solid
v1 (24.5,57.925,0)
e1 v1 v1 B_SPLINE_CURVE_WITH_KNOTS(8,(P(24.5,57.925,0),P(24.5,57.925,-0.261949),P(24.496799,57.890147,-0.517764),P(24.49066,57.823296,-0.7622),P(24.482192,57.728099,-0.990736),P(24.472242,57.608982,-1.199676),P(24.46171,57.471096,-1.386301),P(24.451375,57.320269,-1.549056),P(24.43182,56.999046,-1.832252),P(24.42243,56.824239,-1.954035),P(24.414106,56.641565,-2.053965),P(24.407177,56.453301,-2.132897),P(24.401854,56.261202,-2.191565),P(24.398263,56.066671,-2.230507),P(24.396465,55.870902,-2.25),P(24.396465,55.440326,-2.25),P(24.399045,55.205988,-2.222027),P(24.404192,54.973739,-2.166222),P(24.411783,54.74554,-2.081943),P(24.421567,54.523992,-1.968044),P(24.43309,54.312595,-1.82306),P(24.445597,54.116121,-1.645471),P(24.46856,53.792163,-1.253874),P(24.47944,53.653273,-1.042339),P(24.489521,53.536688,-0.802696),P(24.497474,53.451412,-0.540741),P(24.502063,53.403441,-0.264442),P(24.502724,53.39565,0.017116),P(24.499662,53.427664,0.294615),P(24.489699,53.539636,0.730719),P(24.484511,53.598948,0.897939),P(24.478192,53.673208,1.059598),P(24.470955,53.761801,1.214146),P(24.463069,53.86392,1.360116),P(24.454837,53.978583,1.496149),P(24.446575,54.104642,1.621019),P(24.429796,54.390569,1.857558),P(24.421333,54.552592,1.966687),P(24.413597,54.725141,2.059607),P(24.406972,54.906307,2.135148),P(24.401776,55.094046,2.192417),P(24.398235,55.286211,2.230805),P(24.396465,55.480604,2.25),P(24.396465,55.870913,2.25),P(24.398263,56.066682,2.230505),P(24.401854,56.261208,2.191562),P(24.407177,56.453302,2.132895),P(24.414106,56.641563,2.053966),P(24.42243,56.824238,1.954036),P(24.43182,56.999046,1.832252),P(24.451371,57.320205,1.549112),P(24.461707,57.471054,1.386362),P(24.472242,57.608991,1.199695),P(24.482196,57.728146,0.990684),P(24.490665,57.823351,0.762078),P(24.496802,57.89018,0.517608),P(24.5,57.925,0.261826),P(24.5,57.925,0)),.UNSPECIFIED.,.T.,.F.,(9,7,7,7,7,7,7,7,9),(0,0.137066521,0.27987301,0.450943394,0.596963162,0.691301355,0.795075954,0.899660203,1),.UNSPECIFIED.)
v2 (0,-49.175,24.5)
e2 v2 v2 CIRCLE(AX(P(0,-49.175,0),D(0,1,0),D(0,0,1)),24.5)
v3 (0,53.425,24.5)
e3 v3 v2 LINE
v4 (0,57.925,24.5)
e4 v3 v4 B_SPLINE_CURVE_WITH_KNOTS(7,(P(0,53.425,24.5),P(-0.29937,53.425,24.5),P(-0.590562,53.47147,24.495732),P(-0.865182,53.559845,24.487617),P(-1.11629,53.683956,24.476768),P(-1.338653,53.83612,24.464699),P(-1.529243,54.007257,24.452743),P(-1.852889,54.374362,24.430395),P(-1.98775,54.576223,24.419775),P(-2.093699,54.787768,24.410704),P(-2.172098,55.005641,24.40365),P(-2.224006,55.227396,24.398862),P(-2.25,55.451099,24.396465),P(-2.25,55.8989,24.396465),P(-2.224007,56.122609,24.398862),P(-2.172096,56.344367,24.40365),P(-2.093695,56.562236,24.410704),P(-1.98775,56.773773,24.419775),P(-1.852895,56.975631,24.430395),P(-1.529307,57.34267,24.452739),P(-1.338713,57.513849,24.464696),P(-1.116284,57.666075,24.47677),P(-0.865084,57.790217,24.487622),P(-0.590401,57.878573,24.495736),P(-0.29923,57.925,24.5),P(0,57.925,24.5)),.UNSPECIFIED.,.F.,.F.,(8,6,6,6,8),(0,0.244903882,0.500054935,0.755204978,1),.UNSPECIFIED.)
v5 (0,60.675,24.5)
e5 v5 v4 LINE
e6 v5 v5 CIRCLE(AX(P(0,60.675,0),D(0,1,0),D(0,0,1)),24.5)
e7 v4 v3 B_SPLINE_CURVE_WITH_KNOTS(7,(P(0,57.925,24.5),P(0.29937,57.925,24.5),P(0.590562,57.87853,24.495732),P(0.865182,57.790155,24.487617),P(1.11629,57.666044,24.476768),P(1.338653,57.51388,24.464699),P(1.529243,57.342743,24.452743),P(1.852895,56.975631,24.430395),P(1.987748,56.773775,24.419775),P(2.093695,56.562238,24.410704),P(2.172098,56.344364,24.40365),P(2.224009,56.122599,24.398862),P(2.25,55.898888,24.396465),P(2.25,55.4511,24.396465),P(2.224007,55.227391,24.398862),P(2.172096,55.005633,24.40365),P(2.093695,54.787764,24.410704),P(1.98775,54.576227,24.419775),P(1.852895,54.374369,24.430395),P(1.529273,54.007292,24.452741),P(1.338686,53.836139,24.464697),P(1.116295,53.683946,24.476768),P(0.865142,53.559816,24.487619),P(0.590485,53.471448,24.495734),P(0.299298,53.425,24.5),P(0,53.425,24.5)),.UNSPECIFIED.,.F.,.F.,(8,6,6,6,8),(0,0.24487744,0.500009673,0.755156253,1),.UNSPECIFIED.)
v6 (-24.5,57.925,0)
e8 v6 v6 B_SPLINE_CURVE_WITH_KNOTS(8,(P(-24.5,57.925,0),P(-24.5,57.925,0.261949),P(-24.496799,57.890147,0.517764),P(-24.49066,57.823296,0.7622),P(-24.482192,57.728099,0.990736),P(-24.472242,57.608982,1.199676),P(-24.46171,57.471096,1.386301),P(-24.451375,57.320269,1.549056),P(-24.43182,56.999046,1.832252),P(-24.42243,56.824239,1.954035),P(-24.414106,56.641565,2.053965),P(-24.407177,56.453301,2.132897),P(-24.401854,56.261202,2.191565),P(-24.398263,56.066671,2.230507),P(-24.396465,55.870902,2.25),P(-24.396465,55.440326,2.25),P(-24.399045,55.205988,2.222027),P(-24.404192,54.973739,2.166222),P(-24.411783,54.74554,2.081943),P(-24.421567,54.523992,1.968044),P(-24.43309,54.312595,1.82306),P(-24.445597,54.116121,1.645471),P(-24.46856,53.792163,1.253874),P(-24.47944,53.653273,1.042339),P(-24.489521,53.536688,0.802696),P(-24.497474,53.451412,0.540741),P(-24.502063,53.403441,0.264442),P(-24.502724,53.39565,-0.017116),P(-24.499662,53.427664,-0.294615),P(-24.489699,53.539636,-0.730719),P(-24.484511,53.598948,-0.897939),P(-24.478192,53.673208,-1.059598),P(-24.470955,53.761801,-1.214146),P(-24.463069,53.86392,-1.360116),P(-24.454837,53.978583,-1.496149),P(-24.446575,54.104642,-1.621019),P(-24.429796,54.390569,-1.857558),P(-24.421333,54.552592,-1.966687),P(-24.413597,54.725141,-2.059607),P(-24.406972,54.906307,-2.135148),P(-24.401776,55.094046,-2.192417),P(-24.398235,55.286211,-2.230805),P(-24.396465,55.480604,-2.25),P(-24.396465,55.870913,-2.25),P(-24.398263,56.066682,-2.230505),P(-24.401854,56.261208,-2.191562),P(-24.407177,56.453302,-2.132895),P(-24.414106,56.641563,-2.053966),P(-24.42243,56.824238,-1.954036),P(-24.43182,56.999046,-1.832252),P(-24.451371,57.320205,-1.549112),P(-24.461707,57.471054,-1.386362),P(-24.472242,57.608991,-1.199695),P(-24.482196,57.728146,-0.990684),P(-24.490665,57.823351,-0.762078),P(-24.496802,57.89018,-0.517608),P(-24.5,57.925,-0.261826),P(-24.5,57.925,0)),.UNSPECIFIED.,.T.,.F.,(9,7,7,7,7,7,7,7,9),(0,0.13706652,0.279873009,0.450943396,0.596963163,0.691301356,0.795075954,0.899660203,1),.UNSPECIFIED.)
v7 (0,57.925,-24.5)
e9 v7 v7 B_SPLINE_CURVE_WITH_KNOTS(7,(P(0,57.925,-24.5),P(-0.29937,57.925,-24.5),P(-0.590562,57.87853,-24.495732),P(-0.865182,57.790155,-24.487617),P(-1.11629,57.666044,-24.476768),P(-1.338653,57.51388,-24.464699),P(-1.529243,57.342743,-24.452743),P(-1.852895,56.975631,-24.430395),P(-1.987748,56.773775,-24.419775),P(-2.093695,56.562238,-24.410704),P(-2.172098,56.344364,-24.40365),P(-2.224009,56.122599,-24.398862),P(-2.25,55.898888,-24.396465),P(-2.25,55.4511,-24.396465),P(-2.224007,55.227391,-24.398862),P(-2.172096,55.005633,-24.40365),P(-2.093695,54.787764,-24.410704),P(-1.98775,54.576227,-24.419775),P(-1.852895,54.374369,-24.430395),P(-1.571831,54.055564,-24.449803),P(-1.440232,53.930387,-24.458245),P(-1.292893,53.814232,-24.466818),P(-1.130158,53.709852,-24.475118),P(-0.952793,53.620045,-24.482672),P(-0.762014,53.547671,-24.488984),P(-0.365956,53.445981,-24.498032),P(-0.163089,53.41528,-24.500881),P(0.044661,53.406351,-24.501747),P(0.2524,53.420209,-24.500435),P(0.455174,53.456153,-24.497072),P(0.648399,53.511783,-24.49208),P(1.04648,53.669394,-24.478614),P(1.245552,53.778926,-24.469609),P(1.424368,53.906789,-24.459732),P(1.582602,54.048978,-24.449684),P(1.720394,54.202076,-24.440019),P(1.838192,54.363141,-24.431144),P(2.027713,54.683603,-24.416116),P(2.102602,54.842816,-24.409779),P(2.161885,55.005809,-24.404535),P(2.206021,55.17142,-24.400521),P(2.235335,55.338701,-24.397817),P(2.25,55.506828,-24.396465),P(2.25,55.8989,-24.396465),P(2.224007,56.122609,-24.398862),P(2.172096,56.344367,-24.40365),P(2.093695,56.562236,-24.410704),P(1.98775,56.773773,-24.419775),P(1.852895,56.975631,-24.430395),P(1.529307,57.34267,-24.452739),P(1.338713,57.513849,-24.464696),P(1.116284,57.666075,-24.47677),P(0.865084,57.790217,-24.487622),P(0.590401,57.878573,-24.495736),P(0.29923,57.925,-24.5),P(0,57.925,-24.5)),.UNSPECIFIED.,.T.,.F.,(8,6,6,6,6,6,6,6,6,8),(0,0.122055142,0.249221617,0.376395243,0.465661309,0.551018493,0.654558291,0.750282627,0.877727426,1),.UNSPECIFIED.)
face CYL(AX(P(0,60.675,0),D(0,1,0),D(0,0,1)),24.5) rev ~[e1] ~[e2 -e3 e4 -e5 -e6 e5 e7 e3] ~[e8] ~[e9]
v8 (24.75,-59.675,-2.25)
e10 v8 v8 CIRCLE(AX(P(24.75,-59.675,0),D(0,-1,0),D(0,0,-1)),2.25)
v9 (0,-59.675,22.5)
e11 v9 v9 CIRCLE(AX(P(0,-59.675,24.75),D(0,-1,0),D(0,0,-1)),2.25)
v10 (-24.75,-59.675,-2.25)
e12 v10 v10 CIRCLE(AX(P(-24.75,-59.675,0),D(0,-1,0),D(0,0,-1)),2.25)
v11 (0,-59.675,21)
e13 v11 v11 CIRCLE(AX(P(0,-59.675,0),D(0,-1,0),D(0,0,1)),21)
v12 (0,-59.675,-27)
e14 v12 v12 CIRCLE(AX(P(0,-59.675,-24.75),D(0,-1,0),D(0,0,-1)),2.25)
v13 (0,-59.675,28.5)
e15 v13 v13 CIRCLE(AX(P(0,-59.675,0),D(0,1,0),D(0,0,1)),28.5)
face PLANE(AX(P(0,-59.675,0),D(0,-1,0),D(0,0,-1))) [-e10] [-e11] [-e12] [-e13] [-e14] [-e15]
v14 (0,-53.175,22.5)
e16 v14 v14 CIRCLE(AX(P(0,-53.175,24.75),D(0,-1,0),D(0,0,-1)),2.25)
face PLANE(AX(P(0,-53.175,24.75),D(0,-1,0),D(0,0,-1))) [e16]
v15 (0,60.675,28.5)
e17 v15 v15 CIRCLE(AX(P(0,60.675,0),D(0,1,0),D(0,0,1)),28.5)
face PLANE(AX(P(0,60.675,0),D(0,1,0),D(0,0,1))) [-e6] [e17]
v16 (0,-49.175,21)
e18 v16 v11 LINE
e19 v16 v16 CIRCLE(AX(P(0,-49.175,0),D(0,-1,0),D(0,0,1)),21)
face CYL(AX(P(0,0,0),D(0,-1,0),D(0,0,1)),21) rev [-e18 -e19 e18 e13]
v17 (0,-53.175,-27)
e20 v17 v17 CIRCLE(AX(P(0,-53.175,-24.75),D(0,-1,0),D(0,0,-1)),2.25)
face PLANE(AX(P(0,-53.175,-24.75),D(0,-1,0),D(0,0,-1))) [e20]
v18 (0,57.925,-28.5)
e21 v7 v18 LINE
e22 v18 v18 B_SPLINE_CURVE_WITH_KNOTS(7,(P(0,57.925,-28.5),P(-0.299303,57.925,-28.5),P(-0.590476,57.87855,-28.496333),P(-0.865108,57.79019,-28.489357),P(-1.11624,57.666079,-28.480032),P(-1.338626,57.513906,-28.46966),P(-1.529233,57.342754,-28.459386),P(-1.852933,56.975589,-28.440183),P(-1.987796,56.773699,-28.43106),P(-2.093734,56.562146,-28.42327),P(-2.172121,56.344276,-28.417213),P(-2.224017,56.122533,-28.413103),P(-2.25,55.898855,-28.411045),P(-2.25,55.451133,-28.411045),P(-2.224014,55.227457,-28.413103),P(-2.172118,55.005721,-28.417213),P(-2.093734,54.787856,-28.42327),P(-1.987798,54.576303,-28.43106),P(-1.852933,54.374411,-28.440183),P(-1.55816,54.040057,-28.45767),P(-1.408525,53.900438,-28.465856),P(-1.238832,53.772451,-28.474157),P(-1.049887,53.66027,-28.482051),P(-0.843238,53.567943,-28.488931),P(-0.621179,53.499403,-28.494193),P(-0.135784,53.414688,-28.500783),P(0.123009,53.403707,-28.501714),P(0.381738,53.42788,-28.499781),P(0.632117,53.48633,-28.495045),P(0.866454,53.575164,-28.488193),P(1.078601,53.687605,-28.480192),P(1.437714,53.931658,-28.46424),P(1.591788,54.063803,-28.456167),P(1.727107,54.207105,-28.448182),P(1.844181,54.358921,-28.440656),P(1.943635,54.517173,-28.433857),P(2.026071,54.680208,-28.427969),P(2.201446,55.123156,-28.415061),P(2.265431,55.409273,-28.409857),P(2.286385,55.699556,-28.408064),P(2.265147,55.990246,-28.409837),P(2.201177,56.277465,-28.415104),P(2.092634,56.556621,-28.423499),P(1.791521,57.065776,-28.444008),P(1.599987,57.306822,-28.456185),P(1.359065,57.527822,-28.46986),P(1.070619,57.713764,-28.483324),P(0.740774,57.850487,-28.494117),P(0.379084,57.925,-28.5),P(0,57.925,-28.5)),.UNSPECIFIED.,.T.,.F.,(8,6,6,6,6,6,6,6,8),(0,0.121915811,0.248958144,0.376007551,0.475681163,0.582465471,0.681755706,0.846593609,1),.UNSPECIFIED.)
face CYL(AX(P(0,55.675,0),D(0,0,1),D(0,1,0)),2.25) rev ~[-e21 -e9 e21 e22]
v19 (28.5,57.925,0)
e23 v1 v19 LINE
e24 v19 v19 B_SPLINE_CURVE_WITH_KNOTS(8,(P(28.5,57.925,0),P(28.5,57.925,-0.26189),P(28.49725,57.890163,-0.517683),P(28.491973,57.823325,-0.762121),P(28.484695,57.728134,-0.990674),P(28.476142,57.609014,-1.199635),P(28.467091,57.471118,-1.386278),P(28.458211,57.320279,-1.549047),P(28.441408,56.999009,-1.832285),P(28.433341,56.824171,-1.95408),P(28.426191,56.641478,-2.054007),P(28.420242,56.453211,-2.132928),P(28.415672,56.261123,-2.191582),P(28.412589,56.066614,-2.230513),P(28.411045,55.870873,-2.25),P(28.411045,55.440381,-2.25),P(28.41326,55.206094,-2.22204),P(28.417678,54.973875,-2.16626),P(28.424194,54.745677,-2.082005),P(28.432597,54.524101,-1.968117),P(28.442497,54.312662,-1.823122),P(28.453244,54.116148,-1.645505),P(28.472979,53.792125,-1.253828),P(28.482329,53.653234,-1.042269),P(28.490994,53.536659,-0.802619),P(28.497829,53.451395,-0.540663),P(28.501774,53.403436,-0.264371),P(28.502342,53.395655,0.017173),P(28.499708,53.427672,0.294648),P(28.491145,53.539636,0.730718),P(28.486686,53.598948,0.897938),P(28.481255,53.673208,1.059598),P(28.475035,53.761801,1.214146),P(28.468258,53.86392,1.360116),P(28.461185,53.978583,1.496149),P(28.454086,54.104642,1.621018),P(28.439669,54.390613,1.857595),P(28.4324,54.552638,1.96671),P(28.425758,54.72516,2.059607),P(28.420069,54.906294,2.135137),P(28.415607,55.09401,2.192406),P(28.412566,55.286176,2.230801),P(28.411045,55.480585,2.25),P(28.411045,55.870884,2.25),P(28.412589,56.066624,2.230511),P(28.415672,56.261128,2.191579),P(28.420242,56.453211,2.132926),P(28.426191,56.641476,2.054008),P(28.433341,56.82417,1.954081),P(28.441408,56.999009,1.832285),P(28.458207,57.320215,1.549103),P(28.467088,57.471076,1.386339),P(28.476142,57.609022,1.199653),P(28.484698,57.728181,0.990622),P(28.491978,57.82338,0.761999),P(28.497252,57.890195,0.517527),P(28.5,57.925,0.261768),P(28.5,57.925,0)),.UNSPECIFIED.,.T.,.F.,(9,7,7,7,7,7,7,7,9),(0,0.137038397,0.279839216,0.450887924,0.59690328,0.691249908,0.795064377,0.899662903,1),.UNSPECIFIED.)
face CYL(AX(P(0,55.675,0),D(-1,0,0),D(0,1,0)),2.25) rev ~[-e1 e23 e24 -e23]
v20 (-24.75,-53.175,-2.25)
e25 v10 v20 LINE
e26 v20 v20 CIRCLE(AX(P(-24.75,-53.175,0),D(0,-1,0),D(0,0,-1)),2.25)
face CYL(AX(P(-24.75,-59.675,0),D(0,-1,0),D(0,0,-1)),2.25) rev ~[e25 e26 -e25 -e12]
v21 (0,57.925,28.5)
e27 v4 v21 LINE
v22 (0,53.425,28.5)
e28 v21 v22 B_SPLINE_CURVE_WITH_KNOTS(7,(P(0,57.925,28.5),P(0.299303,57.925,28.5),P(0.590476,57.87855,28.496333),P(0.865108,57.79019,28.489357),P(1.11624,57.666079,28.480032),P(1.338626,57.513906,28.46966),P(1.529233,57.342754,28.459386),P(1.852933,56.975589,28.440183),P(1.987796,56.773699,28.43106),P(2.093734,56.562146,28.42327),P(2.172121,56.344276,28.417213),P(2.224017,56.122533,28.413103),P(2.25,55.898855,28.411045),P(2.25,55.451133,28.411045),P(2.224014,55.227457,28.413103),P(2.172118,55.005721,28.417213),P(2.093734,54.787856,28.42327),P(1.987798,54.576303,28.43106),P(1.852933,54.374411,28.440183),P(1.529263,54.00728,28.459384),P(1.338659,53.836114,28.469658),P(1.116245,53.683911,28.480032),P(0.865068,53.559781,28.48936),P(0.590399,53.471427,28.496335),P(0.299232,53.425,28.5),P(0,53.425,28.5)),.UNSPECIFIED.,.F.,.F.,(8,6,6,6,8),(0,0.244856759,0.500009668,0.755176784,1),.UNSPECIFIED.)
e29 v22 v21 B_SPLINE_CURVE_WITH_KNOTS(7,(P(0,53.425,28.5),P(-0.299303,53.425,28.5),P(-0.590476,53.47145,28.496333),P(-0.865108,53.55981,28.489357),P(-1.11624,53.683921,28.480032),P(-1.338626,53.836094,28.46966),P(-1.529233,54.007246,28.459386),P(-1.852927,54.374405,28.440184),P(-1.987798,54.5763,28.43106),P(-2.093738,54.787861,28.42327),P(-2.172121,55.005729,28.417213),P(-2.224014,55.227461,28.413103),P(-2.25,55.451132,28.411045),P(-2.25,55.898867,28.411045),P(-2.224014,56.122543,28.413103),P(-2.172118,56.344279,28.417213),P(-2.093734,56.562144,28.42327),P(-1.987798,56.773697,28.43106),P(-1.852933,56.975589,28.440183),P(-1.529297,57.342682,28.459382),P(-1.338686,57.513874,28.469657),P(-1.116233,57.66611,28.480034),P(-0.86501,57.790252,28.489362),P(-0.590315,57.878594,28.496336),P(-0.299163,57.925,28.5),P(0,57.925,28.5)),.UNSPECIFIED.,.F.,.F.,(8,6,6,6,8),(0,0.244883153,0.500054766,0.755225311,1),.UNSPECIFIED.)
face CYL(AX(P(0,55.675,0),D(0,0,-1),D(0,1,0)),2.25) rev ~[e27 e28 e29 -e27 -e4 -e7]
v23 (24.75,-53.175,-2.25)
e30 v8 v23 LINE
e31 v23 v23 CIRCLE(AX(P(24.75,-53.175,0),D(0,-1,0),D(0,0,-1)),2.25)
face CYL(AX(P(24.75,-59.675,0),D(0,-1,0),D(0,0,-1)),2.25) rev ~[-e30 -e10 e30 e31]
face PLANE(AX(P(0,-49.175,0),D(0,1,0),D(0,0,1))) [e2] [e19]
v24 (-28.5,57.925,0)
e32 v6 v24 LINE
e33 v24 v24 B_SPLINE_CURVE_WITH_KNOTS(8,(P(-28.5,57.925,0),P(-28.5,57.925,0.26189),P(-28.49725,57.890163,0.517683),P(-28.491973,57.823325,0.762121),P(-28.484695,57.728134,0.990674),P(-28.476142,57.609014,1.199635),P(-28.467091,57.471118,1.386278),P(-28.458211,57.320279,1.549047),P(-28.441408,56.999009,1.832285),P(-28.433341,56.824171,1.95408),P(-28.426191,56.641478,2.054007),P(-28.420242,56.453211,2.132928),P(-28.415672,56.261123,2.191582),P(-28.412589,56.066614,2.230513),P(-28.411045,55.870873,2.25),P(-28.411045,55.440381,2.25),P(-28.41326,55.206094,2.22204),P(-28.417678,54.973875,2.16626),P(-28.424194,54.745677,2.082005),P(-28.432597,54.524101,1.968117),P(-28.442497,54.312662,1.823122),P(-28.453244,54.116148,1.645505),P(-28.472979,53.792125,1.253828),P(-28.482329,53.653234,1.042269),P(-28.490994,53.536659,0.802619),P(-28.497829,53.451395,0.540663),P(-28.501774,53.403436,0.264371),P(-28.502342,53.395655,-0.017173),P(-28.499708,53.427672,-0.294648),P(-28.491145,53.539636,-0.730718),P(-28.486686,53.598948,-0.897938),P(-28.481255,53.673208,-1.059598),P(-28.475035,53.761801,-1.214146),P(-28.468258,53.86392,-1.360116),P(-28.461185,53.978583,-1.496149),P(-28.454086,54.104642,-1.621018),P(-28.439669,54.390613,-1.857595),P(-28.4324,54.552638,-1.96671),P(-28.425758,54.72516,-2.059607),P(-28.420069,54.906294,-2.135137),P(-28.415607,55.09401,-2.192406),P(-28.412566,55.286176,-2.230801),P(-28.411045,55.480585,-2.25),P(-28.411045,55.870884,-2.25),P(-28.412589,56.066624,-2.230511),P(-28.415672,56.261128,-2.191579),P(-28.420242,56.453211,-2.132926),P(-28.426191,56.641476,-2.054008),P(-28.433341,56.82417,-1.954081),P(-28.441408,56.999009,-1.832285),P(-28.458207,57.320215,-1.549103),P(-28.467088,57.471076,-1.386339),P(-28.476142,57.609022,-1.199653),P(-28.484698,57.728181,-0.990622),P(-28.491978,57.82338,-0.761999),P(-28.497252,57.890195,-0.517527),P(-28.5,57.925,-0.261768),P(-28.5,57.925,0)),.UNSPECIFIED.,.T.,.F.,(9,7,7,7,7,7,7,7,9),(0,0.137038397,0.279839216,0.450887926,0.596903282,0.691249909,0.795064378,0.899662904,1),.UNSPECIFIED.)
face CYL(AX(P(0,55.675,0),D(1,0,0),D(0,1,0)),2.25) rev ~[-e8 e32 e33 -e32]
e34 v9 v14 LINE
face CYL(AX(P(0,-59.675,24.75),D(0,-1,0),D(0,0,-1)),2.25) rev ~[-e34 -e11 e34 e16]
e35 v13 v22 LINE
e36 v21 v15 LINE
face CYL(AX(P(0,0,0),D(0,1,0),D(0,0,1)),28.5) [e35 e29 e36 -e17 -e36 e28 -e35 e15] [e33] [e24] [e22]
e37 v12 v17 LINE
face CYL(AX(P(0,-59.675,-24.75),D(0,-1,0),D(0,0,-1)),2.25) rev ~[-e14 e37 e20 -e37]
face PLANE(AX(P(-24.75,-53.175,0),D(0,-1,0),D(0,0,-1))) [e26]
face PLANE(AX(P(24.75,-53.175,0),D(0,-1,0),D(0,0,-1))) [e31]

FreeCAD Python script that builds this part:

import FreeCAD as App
import Part
import Sketcher
from FreeCAD import Vector
Q = App.Units.Quantity

doc = App.newDocument("Part")
params = doc.addObject("Spreadsheet::Sheet", "Params")
for row, (alias, value) in enumerate([
    ("sketch1_diameter", "57 mm"),
    ("sketch1_diameter2", "42 mm"),
    ("pad1_length", "121.35 mm"),
    ("sketch2_diameter", "4.5 mm"),
    ("sketch3_diameter", "57 mm"),
    ("pocket2_length", "1 mm"),
    ("sketch4_diameter", "4.5 mm"),
    ("pocket3_length", "6.5 mm"),
    ("sketch5_diameter", "49 mm"),
    ("pocket4_length", "109.85 mm"),
], start=1):
    params.set(f"A{row}", alias)
    params.set(f"B{row}", "=" + value)
    params.setAlias(f"B{row}", alias)

body = doc.addObject("PartDesign::Body", "Body")

sketch1 = doc.addObject("Sketcher::SketchObject", "Sketch")
body.addObject(sketch1)
sketch1.AttachmentSupport = (doc.XZ_Plane, [""])
sketch1.MapMode = "FlatFace"
sketch1.addGeometry([
    Part.Circle(Vector(0, 0, 0), Vector(0, 0, 1), 28),
    Part.Circle(Vector(0, 0, 0), Vector(0, 0, 1), 21),
], False)
sketch1.addConstraint([
    Sketcher.Constraint("Coincident", 0, 3, -1, 1),
    Sketcher.Constraint("Coincident", 1, 3, -1, 1),
    Sketcher.Constraint("Diameter", 0, Q("57 mm")),
    Sketcher.Constraint("Diameter", 1, Q("42 mm")),
])
sketch1.setExpression("Constraints[2]", "Params.sketch1_diameter")
sketch1.setExpression("Constraints[3]", "Params.sketch1_diameter2")
pad1 = doc.addObject("PartDesign::Pad", "Pad")
body.addObject(pad1)
pad1.Profile = sketch1
pad1.setExpression("Length", "Params.pad1_length")
pad1.Midplane = True

sketch2 = doc.addObject("Sketcher::SketchObject", "Sketch001")
body.addObject(sketch2)
sketch2.AttachmentSupport = (doc.XY_Plane, [""])
sketch2.MapMode = "FlatFace"
sketch2.addGeometry(Part.Circle(Vector(0, 55.7, 0), Vector(0, 0, 1), 2.2), False)
sketch2.addConstraint([
    Sketcher.Constraint("PointOnObject", 0, 3, -2),
    Sketcher.Constraint("Diameter", 0, Q("4.5 mm")),
    Sketcher.Constraint("DistanceY", -1, 1, 0, 3, Q("55.675 mm")),
])
sketch2.setExpression("Constraints[1]", "Params.sketch2_diameter")
pocket1 = doc.addObject("PartDesign::Pocket", "Pocket")
body.addObject(pocket1)
pocket1.Profile = sketch2
pocket1.Type = "ThroughAll"
doc.recompute()

polarpattern = doc.addObject("PartDesign::PolarPattern", "PolarPattern")
body.addObject(polarpattern)
polarpattern.Originals = [pocket1]
polarpattern.Axis = (doc.Y_Axis, [""])
polarpattern.Angle = 360
polarpattern.Occurrences = 4
body.Tip = polarpattern

sketch3 = doc.addObject("Sketcher::SketchObject", "Sketch002")
body.addObject(sketch3)
sketch3.AttachmentSupport = (doc.XZ_Plane, [""])
sketch3.MapMode = "FlatFace"
sketch3.AttachmentOffset = App.Placement(Vector(0, 0, 59.675), App.Rotation())
sketch3.addGeometry(Part.Circle(Vector(0, 0, 0), Vector(0, 0, 1), 28), False)
sketch3.addConstraint([
    Sketcher.Constraint("Coincident", 0, 3, -1, 1),
    Sketcher.Constraint("Diameter", 0, Q("57 mm")),
])
sketch3.setExpression("Constraints[1]", "Params.sketch3_diameter")
pocket2 = doc.addObject("PartDesign::Pocket", "Pocket001")
body.addObject(pocket2)
pocket2.Profile = sketch3
pocket2.setExpression("Length", "Params.pocket2_length")
pocket2.Reversed = True

sketch4 = doc.addObject("Sketcher::SketchObject", "Sketch003")
body.addObject(sketch4)
sketch4.AttachmentSupport = (doc.XZ_Plane, [""])
sketch4.MapMode = "FlatFace"
sketch4.AttachmentOffset = App.Placement(Vector(0, 0, 59.675), App.Rotation())
sketch4.addGeometry([
    Part.Circle(Vector(0, 24.8, 0), Vector(0, 0, 1), 2.2),
    Part.Circle(Vector(24.8, 0, 0), Vector(0, 0, 1), 2.2),
    Part.Circle(Vector(0, -24.8, 0), Vector(0, 0, 1), 2.2),
    Part.Circle(Vector(-24.8, 0, 0), Vector(0, 0, 1), 2.2),
], False)
sketch4.addConstraint([
    Sketcher.Constraint("Equal", 0, 1),
    Sketcher.Constraint("Equal", 1, 2),
    Sketcher.Constraint("Equal", 2, 3),
    Sketcher.Constraint("Symmetric", 0, 3, 2, 3, -1, 1),
    Sketcher.Constraint("Symmetric", 1, 3, 3, 3, -1, 1),
    Sketcher.Constraint("PointOnObject", 0, 3, -2),
    Sketcher.Constraint("PointOnObject", 1, 3, -1),
    Sketcher.Constraint("Diameter", 0, Q("4.5 mm")),
    Sketcher.Constraint("DistanceY", 2, 3, 0, 3, Q("49.5 mm")),
    Sketcher.Constraint("DistanceX", 3, 3, 1, 3, Q("49.5 mm")),
])
sketch4.setExpression("Constraints[7]", "Params.sketch4_diameter")
pocket3 = doc.addObject("PartDesign::Pocket", "Pocket002")
body.addObject(pocket3)
pocket3.Profile = sketch4
pocket3.setExpression("Length", "Params.pocket3_length")

sketch5 = doc.addObject("Sketcher::SketchObject", "Sketch004")
body.addObject(sketch5)
sketch5.AttachmentSupport = (doc.XZ_Plane, [""])
sketch5.MapMode = "FlatFace"
sketch5.AttachmentOffset = App.Placement(Vector(0, 0, -60.675), App.Rotation())
sketch5.addGeometry(Part.Circle(Vector(0, 0, 0), Vector(0, 0, 1), 24), False)
sketch5.addConstraint([
    Sketcher.Constraint("Coincident", 0, 3, -1, 1),
    Sketcher.Constraint("Diameter", 0, Q("49 mm")),
])
sketch5.setExpression("Constraints[1]", "Params.sketch5_diameter")
pocket4 = doc.addObject("PartDesign::Pocket", "Pocket003")
body.addObject(pocket4)
pocket4.Profile = sketch5
pocket4.setExpression("Length", "Params.pocket4_length")
pocket4.Reversed = True

doc.recompute()
